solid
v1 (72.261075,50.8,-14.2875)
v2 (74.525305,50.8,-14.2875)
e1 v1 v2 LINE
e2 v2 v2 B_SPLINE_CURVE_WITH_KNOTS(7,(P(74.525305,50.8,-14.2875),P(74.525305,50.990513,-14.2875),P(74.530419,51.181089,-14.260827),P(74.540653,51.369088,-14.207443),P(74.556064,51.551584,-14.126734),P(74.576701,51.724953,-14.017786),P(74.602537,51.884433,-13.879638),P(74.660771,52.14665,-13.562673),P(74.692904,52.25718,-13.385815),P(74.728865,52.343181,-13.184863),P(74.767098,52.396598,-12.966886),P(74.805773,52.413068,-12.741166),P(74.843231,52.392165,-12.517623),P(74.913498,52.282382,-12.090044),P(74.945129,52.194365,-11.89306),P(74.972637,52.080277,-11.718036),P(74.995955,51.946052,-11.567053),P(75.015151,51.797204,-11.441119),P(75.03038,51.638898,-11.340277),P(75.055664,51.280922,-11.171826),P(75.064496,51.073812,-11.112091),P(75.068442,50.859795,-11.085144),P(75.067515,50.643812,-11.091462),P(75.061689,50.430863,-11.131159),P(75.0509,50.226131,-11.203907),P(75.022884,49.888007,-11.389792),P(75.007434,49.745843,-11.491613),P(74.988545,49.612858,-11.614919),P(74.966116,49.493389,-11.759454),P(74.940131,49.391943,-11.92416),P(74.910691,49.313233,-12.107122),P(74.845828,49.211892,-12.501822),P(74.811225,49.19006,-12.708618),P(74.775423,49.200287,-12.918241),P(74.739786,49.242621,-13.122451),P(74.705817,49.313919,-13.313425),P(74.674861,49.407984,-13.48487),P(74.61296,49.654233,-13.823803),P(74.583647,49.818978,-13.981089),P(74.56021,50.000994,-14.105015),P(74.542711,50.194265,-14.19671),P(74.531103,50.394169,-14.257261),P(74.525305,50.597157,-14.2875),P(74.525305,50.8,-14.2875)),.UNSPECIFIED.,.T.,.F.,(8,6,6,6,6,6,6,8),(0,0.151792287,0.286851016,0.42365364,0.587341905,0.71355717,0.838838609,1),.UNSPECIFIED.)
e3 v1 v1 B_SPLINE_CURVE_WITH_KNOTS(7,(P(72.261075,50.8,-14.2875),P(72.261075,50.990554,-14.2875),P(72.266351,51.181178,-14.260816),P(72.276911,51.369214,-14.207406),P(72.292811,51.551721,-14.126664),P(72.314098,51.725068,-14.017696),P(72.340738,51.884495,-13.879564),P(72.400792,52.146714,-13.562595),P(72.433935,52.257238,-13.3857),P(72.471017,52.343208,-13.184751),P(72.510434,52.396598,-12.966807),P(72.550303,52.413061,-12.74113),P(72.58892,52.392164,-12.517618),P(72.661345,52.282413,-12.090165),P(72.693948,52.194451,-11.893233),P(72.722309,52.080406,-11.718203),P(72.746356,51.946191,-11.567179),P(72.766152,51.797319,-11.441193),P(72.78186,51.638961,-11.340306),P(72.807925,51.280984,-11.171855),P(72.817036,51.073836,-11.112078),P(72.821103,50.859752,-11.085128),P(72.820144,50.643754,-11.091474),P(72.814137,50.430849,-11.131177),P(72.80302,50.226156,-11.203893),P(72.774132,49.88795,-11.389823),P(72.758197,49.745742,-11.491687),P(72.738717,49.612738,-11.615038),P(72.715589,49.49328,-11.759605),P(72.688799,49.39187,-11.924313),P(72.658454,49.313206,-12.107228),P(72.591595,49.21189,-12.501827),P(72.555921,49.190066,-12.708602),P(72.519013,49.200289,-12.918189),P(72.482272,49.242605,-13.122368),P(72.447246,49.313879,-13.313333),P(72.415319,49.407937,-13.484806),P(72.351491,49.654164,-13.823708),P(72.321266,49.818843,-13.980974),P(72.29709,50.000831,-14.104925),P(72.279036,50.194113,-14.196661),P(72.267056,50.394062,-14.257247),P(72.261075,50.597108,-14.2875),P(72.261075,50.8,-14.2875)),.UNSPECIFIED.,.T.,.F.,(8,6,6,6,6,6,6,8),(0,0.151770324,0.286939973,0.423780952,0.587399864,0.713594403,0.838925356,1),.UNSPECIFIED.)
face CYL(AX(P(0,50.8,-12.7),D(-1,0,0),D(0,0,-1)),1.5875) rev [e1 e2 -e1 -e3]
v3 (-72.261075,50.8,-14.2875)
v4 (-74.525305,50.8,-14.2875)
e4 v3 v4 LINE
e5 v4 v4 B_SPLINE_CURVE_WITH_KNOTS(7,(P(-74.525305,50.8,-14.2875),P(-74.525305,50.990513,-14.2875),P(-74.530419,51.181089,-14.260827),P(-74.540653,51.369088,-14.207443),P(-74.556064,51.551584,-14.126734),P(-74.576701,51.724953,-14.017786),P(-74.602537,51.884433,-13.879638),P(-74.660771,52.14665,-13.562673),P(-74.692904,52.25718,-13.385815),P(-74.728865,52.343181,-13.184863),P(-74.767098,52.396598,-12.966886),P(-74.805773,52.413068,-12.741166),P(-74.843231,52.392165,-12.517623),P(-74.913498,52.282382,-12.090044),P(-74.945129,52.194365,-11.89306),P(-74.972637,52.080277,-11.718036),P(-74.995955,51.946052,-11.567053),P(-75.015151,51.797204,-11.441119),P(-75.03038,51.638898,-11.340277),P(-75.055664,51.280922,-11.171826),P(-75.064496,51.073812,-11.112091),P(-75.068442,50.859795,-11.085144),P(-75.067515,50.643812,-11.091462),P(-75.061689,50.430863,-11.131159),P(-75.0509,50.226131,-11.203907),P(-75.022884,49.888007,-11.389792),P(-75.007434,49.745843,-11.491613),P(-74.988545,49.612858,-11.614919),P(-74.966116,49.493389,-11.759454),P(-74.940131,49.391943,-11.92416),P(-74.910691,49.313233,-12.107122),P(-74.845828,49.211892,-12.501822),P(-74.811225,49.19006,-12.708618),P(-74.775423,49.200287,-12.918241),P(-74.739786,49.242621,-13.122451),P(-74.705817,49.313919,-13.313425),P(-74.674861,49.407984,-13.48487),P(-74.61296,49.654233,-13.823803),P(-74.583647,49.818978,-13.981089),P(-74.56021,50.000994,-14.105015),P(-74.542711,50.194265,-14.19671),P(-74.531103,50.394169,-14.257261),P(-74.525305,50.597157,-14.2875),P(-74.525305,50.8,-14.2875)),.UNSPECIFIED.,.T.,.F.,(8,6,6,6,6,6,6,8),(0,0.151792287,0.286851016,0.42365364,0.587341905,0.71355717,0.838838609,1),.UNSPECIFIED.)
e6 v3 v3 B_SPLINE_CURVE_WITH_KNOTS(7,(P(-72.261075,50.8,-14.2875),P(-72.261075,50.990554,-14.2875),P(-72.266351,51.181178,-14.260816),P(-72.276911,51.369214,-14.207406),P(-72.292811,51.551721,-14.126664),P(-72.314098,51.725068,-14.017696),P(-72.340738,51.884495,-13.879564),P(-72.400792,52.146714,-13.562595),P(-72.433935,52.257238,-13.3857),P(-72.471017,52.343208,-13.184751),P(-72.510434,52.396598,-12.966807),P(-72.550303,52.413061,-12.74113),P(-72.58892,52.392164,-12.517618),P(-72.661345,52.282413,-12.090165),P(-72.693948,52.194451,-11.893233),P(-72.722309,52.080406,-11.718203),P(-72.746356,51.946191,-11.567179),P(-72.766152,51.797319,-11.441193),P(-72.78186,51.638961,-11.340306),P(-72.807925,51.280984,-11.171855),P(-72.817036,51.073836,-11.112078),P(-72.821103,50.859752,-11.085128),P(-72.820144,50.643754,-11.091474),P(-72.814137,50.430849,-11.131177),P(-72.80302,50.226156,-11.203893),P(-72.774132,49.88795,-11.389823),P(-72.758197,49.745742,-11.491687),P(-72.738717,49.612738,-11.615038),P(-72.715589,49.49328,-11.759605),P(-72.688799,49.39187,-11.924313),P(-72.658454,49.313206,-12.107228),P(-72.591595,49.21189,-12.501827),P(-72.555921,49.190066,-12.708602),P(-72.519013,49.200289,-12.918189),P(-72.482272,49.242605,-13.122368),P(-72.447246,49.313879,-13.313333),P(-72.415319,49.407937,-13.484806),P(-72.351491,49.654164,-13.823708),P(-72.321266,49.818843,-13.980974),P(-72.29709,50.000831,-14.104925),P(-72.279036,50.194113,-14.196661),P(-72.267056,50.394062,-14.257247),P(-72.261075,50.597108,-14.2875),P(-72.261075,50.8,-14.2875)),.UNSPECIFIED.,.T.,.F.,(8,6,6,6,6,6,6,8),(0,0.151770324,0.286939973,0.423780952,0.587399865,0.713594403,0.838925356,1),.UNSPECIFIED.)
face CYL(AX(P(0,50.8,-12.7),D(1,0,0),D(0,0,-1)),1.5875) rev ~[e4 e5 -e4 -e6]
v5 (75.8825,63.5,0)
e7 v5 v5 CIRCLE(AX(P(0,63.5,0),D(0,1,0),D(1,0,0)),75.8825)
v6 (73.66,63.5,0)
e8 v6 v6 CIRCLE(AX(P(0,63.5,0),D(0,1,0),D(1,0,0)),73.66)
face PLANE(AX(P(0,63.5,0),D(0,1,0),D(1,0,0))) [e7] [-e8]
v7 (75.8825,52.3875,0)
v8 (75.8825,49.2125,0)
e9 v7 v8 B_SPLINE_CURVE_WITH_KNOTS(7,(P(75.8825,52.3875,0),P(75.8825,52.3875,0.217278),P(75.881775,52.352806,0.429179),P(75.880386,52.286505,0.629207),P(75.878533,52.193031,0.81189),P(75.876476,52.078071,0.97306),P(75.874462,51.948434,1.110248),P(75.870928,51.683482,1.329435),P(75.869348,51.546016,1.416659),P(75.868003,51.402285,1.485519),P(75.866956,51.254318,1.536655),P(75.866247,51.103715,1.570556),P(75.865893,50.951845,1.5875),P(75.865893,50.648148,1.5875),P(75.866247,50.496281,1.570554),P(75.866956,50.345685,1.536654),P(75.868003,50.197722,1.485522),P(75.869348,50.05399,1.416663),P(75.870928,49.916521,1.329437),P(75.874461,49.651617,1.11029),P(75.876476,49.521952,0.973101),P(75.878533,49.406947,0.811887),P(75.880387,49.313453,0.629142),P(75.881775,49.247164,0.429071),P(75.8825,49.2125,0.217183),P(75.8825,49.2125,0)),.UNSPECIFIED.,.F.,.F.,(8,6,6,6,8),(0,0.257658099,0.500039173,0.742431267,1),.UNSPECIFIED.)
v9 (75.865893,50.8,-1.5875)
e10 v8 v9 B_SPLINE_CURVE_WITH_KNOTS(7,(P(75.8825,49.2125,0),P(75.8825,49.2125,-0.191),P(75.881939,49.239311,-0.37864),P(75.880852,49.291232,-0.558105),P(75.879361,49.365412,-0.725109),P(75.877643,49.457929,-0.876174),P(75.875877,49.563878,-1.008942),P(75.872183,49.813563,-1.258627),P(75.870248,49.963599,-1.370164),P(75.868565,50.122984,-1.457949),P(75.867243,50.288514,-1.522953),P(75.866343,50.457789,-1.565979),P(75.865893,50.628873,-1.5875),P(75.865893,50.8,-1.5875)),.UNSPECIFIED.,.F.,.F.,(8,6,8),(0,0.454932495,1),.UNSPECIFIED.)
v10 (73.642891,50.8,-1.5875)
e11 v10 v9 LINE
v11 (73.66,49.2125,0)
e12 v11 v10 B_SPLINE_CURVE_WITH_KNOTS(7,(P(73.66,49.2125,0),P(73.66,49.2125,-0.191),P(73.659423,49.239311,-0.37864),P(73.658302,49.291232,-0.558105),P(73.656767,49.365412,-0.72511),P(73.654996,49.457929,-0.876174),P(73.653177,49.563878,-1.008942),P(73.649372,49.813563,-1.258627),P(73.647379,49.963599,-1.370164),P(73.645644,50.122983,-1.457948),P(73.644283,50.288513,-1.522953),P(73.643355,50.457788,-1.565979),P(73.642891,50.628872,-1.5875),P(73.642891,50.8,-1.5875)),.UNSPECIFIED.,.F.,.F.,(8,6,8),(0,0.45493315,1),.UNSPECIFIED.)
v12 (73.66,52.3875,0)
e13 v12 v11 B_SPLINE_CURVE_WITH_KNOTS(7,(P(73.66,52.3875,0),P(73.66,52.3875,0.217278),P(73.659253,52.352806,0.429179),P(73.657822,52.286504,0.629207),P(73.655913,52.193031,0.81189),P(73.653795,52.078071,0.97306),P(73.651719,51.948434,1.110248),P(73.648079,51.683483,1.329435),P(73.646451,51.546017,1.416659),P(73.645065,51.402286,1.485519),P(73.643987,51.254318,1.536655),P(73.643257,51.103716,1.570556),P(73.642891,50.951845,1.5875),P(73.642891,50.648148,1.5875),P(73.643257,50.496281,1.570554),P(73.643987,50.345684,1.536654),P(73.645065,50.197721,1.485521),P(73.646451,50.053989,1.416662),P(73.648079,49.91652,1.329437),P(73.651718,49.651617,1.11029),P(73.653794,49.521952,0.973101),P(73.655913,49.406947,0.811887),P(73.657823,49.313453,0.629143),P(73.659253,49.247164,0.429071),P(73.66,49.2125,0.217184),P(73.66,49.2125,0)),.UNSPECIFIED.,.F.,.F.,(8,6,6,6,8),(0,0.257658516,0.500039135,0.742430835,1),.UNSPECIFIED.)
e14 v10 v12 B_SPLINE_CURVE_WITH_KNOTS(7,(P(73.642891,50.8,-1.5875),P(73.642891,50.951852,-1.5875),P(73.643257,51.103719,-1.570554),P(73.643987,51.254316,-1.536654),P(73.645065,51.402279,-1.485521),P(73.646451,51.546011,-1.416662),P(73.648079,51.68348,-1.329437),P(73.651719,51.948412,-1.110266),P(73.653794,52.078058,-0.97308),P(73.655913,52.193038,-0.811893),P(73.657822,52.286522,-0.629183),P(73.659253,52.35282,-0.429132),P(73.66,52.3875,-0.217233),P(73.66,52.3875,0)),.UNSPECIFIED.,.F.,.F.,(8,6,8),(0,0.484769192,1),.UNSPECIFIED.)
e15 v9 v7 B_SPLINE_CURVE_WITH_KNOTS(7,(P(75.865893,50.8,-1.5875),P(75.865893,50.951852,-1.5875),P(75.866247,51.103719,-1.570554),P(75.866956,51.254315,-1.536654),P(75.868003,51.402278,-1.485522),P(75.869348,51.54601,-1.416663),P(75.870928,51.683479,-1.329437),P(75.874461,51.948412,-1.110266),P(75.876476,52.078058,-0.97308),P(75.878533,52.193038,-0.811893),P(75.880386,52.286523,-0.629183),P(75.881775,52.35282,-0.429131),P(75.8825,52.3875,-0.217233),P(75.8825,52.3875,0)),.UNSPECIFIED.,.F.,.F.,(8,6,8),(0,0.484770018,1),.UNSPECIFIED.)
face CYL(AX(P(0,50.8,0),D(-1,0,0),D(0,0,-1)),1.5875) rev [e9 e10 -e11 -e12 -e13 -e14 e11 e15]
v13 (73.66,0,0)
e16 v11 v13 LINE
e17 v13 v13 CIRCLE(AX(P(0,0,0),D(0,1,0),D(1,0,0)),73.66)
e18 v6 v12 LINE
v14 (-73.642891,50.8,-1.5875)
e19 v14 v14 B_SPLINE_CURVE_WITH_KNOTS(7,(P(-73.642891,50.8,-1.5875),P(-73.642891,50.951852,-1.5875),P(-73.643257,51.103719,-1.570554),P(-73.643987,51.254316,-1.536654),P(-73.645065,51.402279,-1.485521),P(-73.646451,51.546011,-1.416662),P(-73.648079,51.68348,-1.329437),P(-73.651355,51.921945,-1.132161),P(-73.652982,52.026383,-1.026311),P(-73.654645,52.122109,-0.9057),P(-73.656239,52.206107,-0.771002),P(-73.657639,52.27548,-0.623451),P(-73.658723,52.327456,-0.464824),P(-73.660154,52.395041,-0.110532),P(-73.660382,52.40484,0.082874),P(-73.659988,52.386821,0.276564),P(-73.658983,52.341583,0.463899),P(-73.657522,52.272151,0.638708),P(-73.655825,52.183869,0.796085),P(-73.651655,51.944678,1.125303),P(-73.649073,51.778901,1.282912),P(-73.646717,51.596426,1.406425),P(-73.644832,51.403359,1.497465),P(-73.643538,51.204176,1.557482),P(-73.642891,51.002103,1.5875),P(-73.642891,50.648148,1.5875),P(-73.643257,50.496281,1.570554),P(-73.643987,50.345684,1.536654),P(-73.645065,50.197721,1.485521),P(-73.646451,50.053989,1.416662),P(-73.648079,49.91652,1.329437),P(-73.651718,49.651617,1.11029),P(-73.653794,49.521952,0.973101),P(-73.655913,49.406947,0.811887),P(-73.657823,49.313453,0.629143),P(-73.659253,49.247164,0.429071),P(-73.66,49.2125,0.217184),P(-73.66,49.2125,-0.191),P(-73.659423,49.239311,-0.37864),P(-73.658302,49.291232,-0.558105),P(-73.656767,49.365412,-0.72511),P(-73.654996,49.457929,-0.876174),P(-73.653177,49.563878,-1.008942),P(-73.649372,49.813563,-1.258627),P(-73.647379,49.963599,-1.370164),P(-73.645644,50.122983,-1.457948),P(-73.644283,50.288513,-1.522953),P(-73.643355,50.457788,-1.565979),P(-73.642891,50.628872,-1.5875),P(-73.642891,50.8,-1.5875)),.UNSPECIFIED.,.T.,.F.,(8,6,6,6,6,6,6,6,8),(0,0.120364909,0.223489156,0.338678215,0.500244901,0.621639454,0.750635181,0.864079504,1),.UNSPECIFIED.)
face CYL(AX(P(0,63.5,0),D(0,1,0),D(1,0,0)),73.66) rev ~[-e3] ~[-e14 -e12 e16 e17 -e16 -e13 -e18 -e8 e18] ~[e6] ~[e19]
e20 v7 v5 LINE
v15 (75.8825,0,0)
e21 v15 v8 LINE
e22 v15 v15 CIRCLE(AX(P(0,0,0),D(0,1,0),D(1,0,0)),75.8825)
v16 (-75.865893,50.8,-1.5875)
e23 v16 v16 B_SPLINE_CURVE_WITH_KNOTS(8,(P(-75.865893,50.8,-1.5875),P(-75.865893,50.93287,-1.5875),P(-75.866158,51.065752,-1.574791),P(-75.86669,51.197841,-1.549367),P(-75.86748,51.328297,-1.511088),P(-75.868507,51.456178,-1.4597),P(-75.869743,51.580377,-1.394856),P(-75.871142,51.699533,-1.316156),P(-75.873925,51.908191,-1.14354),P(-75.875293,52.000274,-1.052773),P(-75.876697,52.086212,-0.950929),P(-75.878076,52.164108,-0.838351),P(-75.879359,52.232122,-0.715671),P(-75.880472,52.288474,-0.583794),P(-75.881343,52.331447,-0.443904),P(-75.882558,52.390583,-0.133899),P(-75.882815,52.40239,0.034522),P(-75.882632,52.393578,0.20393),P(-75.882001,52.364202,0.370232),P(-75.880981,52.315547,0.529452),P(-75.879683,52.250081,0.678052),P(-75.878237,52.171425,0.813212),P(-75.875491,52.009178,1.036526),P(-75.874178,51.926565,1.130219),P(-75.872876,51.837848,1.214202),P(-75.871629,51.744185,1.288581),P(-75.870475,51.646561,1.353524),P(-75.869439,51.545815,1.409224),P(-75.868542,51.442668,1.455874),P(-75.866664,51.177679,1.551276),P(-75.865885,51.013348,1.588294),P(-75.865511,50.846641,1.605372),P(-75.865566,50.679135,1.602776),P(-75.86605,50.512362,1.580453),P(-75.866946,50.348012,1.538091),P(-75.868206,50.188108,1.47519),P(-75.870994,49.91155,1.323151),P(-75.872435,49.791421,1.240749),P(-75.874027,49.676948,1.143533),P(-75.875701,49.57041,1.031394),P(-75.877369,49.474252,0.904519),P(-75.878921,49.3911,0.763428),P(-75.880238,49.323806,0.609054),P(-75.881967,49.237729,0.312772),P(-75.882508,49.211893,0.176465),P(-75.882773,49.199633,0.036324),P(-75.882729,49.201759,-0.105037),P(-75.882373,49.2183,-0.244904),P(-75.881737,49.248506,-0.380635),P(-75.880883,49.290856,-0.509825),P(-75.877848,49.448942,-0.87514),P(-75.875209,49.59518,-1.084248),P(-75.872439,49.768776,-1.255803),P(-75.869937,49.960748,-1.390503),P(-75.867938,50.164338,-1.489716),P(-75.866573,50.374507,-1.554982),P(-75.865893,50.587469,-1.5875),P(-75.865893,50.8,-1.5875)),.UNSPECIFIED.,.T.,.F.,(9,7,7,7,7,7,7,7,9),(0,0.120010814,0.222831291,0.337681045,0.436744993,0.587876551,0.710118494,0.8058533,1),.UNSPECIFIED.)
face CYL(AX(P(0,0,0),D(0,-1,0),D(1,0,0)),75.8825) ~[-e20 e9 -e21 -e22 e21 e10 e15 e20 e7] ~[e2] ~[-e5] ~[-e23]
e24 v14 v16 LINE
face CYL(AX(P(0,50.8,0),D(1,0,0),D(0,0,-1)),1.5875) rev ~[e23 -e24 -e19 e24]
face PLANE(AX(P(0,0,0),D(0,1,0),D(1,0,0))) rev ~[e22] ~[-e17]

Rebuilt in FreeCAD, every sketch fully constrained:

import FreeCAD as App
import Part
import Sketcher
from FreeCAD import Vector
Q = App.Units.Quantity

doc = App.newDocument("Part")
body = doc.addObject("PartDesign::Body", "Body")

sketch1 = body.newObject("Sketcher::SketchObject", "Sketch")
sketch1.AttachmentSupport = (doc.getObject("XZ_Plane"), [""])
sketch1.MapMode = "FlatFace"
sketch1.addGeometry(Part.Circle(Vector(0, 0, 0), Vector(0, 0, 1), 75.8825), False)
sketch1.addConstraint([
    Sketcher.Constraint("Coincident", 0, 3, -1, 1),
    Sketcher.Constraint("Diameter", 0, Q("5.975 in")),
])
pad1 = body.newObject("PartDesign::Pad", "Pad")
pad1.Profile = sketch1
pad1.Length = Q("2.5 in")
pad1.Reversed = True

sketch2 = body.newObject("Sketcher::SketchObject", "Sketch001")
sketch2.AttachmentSupport = (doc.getObject("XZ_Plane"), [""])
sketch2.MapMode = "FlatFace"
sketch2.AttachmentOffset = App.Placement(Vector(0, 0, -2.5 * 25.4), App.Rotation())
sketch2.addGeometry(Part.Circle(Vector(0, 0, 0), Vector(0, 0, 1), 73.66), False)
sketch2.addConstraint([
    Sketcher.Constraint("Coincident", 0, 3, -1, 1),
    Sketcher.Constraint("Diameter", 0, Q("5.8 in")),
])
pocket1 = body.newObject("PartDesign::Pocket", "Pocket")
pocket1.Profile = sketch2
pocket1.Length = Q("4 in")
pocket1.Reversed = True

sketch3 = body.newObject("Sketcher::SketchObject", "Sketch002")
sketch3.AttachmentSupport = (doc.getObject("YZ_Plane"), [""])
sketch3.MapMode = "FlatFace"
sketch3.addGeometry([
    Part.Circle(Vector(50.8, 0, 0), Vector(0, 0, 1), 1.5875),
    Part.Circle(Vector(50.8, -12.7, 0), Vector(0, 0, 1), 1.5875),
], False)
sketch3.addConstraint([
    Sketcher.Constraint("Equal", 0, 1),
    Sketcher.Constraint("PointOnObject", 0, 3, -1),
    Sketcher.Constraint("Vertical", 0, 3, 1, 3),
    Sketcher.Constraint("Diameter", 0, Q("0.125 in")),
    Sketcher.Constraint("DistanceX", -1, 1, 0, 3, Q("2 in")),
    Sketcher.Constraint("DistanceY", 1, 3, -1, 1, Q("0.5 in")),
])
pocket2 = body.newObject("PartDesign::Pocket", "Pocket001")
pocket2.Profile = sketch3
pocket2.Type = "ThroughAll"
pocket2.Midplane = True

doc.recompute()
